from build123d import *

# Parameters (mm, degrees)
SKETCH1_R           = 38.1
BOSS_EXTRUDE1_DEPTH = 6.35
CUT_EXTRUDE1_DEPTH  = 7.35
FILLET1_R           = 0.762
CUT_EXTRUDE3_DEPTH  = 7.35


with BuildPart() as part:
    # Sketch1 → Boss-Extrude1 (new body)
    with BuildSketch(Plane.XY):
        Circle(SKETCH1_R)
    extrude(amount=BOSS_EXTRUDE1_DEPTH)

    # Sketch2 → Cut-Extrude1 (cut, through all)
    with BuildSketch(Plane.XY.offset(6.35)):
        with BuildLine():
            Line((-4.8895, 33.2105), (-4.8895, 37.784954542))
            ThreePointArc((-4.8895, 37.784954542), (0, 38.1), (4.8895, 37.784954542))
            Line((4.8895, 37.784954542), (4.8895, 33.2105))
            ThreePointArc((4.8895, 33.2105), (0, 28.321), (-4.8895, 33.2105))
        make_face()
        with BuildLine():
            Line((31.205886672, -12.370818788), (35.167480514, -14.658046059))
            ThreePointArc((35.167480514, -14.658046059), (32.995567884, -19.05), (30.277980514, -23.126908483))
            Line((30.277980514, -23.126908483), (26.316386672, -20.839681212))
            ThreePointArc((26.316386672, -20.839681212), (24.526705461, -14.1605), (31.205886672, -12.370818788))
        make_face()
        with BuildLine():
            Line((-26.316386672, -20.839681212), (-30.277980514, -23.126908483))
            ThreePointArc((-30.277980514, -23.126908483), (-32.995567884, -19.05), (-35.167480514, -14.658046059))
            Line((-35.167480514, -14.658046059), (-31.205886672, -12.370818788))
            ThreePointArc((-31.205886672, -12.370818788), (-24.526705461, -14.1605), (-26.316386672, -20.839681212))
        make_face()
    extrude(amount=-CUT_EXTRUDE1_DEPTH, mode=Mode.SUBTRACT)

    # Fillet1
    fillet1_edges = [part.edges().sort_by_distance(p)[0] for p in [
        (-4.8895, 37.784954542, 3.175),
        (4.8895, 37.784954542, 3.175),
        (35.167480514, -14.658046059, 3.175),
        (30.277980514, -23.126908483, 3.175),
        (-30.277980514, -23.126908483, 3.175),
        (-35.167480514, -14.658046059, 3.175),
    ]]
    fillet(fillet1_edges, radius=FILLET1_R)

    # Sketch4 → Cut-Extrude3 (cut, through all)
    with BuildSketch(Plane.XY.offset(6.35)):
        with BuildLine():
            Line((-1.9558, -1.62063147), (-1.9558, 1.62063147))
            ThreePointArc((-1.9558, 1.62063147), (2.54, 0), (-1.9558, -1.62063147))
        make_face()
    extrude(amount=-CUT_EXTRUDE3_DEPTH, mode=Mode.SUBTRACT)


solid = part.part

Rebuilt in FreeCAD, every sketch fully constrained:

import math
import FreeCAD as App
import Part
import Sketcher
from FreeCAD import Vector
Q = App.Units.Quantity


def edges_at(feature, points):
    """Names of the edges that pass closest to the given points."""
    edges = feature.Shape.Edges
    near = lambda p: min(range(len(edges)), key=lambda i: edges[i].distToShape(Part.Vertex(*p))[0])
    return sorted({f"Edge{near(p) + 1}" for p in points})

doc = App.newDocument("Part")
params = doc.addObject("Spreadsheet::Sheet", "Params")
for row, (alias, value) in enumerate([
    ("sketch1_diameter", "3 in"),
    ("pad1_length", "0.25 in"),
    ("sketch2_radius", "1.5 in"),
    ("fillet_radius", "0.03 in"),
    ("sketch3_radius", "0.1 in"),
], start=1):
    params.set(f"A{row}", alias)
    params.set(f"B{row}", "=" + value)
    params.setAlias(f"B{row}", alias)

body = doc.addObject("PartDesign::Body", "Body")

# Sketch on XY plane
sketch1 = doc.addObject("Sketcher::SketchObject", "Sketch")
body.addObject(sketch1)
sketch1.AttachmentSupport = (doc.XY_Plane, [""])
sketch1.MapMode = "FlatFace"
sketch1.addGeometry(Part.Circle(Vector(0, 0, 0), Vector(0, 0, 1), 38.1), False)
sketch1.addConstraint([
    Sketcher.Constraint("Coincident", 0, 3, -1, 1),
    Sketcher.Constraint("Diameter", 0, Q("3 in")),
])
sketch1.setExpression("Constraints[1]", "Params.sketch1_diameter")
pad1 = doc.addObject("PartDesign::Pad", "Pad")
body.addObject(pad1)
pad1.Profile = sketch1
pad1.setExpression("Length", "Params.pad1_length")

# Sketch on XY plane
sketch2 = doc.addObject("Sketcher::SketchObject", "Sketch001")
body.addObject(sketch2)
sketch2.AttachmentSupport = (doc.XY_Plane, [""])
sketch2.MapMode = "FlatFace"
sketch2.AttachmentOffset = App.Placement(Vector(0, 0, 0.25 * 25.4), App.Rotation())
sketch2.addGeometry([
    Part.LineSegment(Vector(-4.8895, 37.784955, 0), Vector(-4.8895, 33.2105, 0)),  # 0
    Part.ArcOfCircle(Part.Circle(Vector(0, 33.2105, 0), Vector(0, 0, 1), 4.8895), math.radians(180), math.radians(360)),  # 1
    Part.LineSegment(Vector(4.8895, 33.2105, 0), Vector(4.8895, 37.784955, 0)),  # 2
    Part.ArcOfCircle(Part.Circle(Vector(0, 0, 0), Vector(0, 0, 1), 38.1), math.radians(82.626707), math.radians(97.373293)),  # 3
    Part.LineSegment(Vector(35.167481, -14.658046, 0), Vector(31.205887, -12.370819, 0)),  # 4
    Part.ArcOfCircle(Part.Circle(Vector(28.761137, -16.60525, 0), Vector(0, 0, 1), 4.8895), math.radians(60), math.radians(240)),  # 5
    Part.LineSegment(Vector(26.316387, -20.839681, 0), Vector(30.277981, -23.126908, 0)),  # 6
    Part.ArcOfCircle(Part.Circle(Vector(0, 0, 0), Vector(0, 0, 1), 38.1), math.radians(-37.373293), math.radians(-22.626707)),  # 7
    Part.LineSegment(Vector(-30.277981, -23.126908, 0), Vector(-26.316387, -20.839681, 0)),  # 8
    Part.ArcOfCircle(Part.Circle(Vector(-28.761137, -16.60525, 0), Vector(0, 0, 1), 4.8895), math.radians(-60), math.radians(120)),  # 9
    Part.LineSegment(Vector(-31.205887, -12.370819, 0), Vector(-35.167481, -14.658046, 0)),  # 10
    Part.ArcOfCircle(Part.Circle(Vector(0, 0, 0), Vector(0, 0, 1), 38.1), math.radians(-157.373293), math.radians(-142.626707)),  # 11
], False)
sketch2.addConstraint([
    Sketcher.Constraint("Tangent", 0, 2, 1, 1),
    Sketcher.Constraint("Tangent", 1, 2, 2, 1),
    Sketcher.Constraint("Coincident", 2, 2, 3, 1),
    Sketcher.Constraint("Coincident", 3, 2, 0, 1),
    Sketcher.Constraint("Tangent", 4, 2, 5, 1),
    Sketcher.Constraint("Tangent", 5, 2, 6, 1),
    Sketcher.Constraint("Coincident", 6, 2, 7, 1),
    Sketcher.Constraint("Coincident", 7, 2, 4, 1),
    Sketcher.Constraint("Tangent", 8, 2, 9, 1),
    Sketcher.Constraint("Tangent", 9, 2, 10, 1),
    Sketcher.Constraint("Coincident", 10, 2, 11, 1),
    Sketcher.Constraint("Coincident", 11, 2, 8, 1),
    Sketcher.Constraint("Vertical", 0),
    Sketcher.Constraint("Vertical", 2),
    Sketcher.Constraint("Coincident", 3, 3, -1, 1),
    Sketcher.Constraint("Coincident", 7, 3, -1, 1),
    Sketcher.Constraint("Coincident", 11, 3, -1, 1),
    Sketcher.Constraint("Equal", 1, 5),
    Sketcher.Constraint("Equal", 3, 7),
    Sketcher.Constraint("Equal", 5, 9),
    Sketcher.Constraint("Equal", 7, 11),
    Sketcher.Constraint("Symmetric", 5, 3, 9, 3, -2),
    Sketcher.Constraint("PointOnObject", 1, 3, -2),
    Sketcher.Constraint("Parallel", 4, 6),
    Sketcher.Constraint("Parallel", 8, 10),
    Sketcher.Constraint("Horizontal", 5, 2, 8, 2),
    Sketcher.Constraint("Equal", 4, 6),
    Sketcher.Constraint("Radius", 3, Q("1.5 in")),
    Sketcher.Constraint("Angle", 4, Q("150 deg")),
    Sketcher.Constraint("Radius", 1, Q("0.1925 in")),
    Sketcher.Constraint("DistanceY", -1, 1, 1, 3, Q("1.3075 in")),
    Sketcher.Constraint("DistanceY", 5, 3, -1, 1, Q("16.60525 mm")),
])
sketch2.setExpression("Constraints[27]", "Params.sketch2_radius")
pocket1 = doc.addObject("PartDesign::Pocket", "Pocket")
body.addObject(pocket1)
pocket1.Profile = sketch2
pocket1.Type = "ThroughAll"
doc.recompute()

fillet = doc.addObject("PartDesign::Fillet", "Fillet")
body.addObject(fillet)
fillet.Base = (pocket1, edges_at(pocket1, [
    (-4.889, 37.785, 3.175),
    (4.889, 37.785, 3.175),
    (35.167, -14.658, 3.175),
    (30.278, -23.127, 3.175),
    (-30.278, -23.127, 3.175),
    (-35.167, -14.658, 3.175),
]))
fillet.setExpression("Radius", "Params.fillet_radius")

# Sketch on XY plane
sketch3 = doc.addObject("Sketcher::SketchObject", "Sketch002")
body.addObject(sketch3)
sketch3.AttachmentSupport = (doc.XY_Plane, [""])
sketch3.MapMode = "FlatFace"
sketch3.AttachmentOffset = App.Placement(Vector(0, 0, 0.25 * 25.4), App.Rotation())
sketch3.addGeometry([
    Part.LineSegment(Vector(-1.9558, 1.620631, 0), Vector(-1.9558, -1.620631, 0)),
    Part.ArcOfCircle(Part.Circle(Vector(0, 0, 0), Vector(0, 0, 1), 2.54), math.radians(-140.353889), math.radians(140.353889)),
], False)
sketch3.addConstraint([
    Sketcher.Constraint("Coincident", 0, 1, 1, 2),
    Sketcher.Constraint("Coincident", 1, 1, 0, 2),
    Sketcher.Constraint("Vertical", 0),
    Sketcher.Constraint("Coincident", 1, 3, -1, 1),
    Sketcher.Constraint("Radius", 1, Q("0.1 in")),
    Sketcher.Constraint("DistanceX", 0, 1, -1, 1, Q("0.077 in")),
])
sketch3.setExpression("Constraints[4]", "Params.sketch3_radius")
pocket2 = doc.addObject("PartDesign::Pocket", "Pocket001")
body.addObject(pocket2)
pocket2.Profile = sketch3
pocket2.Type = "ThroughAll"

doc.recompute()
